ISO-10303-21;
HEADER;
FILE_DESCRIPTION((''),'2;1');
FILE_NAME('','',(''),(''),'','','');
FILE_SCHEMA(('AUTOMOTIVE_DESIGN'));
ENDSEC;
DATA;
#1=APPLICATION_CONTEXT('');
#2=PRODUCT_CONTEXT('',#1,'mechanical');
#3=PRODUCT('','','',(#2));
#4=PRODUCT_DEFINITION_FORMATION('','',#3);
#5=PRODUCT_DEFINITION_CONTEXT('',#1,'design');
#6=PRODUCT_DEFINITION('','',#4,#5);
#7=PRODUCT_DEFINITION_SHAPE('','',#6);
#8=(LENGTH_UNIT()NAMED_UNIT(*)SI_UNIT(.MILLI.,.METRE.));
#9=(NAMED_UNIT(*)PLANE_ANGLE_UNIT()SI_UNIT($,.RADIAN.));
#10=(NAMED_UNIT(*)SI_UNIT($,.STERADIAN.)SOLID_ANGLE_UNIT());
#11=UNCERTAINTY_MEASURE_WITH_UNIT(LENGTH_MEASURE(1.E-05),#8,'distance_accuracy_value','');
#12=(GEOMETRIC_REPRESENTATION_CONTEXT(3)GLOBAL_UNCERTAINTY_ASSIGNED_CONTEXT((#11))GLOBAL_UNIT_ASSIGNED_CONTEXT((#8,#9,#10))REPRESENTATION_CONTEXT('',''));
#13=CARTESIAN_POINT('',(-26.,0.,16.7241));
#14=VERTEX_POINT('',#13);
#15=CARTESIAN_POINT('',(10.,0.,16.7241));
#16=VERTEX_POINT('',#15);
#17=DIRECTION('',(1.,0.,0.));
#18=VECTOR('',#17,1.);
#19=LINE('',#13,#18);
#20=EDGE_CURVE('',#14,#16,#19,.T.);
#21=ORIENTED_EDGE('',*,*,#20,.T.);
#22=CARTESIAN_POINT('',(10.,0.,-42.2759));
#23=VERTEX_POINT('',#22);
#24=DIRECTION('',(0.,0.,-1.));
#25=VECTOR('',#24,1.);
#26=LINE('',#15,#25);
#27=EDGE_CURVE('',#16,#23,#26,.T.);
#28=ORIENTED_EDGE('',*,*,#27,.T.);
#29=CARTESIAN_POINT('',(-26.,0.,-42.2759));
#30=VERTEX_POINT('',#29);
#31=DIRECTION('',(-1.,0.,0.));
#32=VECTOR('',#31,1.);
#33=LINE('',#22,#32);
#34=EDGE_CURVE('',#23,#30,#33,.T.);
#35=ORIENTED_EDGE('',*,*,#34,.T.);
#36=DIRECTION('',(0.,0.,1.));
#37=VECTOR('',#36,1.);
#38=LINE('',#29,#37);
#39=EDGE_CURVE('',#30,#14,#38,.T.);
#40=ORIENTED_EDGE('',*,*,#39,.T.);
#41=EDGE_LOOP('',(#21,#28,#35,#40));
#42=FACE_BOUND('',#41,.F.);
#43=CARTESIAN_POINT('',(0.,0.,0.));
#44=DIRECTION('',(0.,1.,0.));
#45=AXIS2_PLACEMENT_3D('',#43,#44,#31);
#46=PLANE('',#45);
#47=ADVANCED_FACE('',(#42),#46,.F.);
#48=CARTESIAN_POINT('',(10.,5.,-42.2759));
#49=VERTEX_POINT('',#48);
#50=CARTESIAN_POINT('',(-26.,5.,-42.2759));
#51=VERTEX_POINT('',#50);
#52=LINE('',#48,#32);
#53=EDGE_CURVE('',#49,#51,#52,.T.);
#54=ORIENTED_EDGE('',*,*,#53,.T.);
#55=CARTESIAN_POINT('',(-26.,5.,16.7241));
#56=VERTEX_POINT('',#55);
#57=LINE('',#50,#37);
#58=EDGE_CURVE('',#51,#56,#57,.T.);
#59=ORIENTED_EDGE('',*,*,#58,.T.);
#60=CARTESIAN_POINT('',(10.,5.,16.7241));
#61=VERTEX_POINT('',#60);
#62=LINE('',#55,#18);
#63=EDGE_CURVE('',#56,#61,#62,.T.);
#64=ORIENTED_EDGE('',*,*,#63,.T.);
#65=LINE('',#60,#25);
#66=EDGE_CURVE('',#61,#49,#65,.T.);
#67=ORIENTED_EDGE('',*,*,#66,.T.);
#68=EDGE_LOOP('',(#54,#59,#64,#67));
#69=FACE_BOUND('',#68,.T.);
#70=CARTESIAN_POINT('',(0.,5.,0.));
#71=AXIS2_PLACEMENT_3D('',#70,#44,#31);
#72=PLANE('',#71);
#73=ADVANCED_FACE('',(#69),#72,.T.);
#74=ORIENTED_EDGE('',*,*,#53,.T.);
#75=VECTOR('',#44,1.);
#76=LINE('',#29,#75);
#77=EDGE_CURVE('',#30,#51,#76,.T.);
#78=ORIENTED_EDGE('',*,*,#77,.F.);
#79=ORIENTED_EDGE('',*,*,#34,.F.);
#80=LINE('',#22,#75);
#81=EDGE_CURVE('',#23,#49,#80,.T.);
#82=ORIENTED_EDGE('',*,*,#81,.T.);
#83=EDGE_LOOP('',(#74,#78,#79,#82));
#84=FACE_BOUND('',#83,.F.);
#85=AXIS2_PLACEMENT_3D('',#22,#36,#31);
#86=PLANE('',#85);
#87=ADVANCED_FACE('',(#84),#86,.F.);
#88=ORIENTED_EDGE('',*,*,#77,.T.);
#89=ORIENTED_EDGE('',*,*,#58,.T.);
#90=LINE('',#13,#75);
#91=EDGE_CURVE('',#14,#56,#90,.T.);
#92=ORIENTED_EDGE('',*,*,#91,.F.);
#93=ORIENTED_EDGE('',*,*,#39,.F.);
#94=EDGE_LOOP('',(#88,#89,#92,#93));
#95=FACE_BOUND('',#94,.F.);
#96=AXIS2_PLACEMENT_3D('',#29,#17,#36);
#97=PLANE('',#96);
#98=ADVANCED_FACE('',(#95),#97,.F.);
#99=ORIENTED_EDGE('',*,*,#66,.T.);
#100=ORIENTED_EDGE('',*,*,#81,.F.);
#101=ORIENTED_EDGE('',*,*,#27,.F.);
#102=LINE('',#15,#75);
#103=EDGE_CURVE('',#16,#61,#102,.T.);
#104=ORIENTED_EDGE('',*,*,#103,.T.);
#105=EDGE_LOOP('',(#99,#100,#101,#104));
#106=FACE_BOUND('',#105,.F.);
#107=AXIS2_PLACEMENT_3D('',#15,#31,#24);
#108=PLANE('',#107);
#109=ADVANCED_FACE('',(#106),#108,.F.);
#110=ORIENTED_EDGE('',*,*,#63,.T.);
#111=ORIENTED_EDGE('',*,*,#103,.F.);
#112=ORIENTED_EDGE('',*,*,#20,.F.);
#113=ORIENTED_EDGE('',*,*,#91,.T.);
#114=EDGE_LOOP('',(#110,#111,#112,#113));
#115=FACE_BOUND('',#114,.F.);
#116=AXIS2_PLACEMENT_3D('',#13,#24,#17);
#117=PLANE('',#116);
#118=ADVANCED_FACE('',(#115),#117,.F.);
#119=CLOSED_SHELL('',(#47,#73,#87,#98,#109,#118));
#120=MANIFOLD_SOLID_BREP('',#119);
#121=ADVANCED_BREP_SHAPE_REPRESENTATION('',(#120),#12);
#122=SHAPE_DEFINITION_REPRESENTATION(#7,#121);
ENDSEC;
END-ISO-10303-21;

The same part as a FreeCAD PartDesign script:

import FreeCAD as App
import Part
import Sketcher
from FreeCAD import Vector
Q = App.Units.Quantity


def add_polygon(sketch, points):
    """Adds a closed chain of lines whose ends are joined by coincident constraints."""
    first, n = sketch.GeometryCount, len(points)
    for a, b in zip(points, points[1:] + points[:1]):
        sketch.addGeometry(Part.LineSegment(App.Vector(*a, 0), App.Vector(*b, 0)), False)
    for i in range(n):
        sketch.addConstraint(Sketcher.Constraint("Coincident", first + i, 2, first + (i + 1) % n, 1))

doc = App.newDocument("Part")
params = doc.addObject("Spreadsheet::Sheet", "Params")
for row, (alias, value) in enumerate([
    ("sketch1_width", "36 mm"),
    ("sketch1_height", "59 mm"),
    ("pad1_length", "5 mm"),
], start=1):
    params.set(f"A{row}", alias)
    params.set(f"B{row}", "=" + value)
    params.setAlias(f"B{row}", alias)

body = doc.addObject("PartDesign::Body", "Body")

# Sketch on XZ plane
sketch1 = doc.addObject("Sketcher::SketchObject", "Sketch")
body.addObject(sketch1)
sketch1.AttachmentSupport = (doc.XZ_Plane, [""])
sketch1.MapMode = "FlatFace"
add_polygon(sketch1, [(-26, -42.2759), (-26, 16.7241), (10, 16.7241), (10, -42.2759)])  # lines 0-3
sketch1.addConstraint(Sketcher.Constraint("Vertical", 0))
sketch1.addConstraint(Sketcher.Constraint("Horizontal", 1))
sketch1.addConstraint(Sketcher.Constraint("Vertical", 2))
sketch1.addConstraint(Sketcher.Constraint("Horizontal", 3))
sketch1.addConstraint(Sketcher.Constraint("DistanceX", 1, 1, 1, 2, Q("36 mm")))
sketch1.addConstraint(Sketcher.Constraint("DistanceY", 0, 1, 0, 2, Q("59 mm")))
sketch1.addConstraint(Sketcher.Constraint("DistanceX", 0, 2, -1, 1, Q("26 mm")))
sketch1.addConstraint(Sketcher.Constraint("DistanceY", -1, 1, 0, 2, Q("16.724 mm")))
sketch1.setExpression("Constraints[8]", "Params.sketch1_width")
sketch1.setExpression("Constraints[9]", "Params.sketch1_height")
pad1 = doc.addObject("PartDesign::Pad", "Pad")
body.addObject(pad1)
pad1.Profile = sketch1
pad1.setExpression("Length", "Params.pad1_length")
pad1.Reversed = True

doc.recompute()
